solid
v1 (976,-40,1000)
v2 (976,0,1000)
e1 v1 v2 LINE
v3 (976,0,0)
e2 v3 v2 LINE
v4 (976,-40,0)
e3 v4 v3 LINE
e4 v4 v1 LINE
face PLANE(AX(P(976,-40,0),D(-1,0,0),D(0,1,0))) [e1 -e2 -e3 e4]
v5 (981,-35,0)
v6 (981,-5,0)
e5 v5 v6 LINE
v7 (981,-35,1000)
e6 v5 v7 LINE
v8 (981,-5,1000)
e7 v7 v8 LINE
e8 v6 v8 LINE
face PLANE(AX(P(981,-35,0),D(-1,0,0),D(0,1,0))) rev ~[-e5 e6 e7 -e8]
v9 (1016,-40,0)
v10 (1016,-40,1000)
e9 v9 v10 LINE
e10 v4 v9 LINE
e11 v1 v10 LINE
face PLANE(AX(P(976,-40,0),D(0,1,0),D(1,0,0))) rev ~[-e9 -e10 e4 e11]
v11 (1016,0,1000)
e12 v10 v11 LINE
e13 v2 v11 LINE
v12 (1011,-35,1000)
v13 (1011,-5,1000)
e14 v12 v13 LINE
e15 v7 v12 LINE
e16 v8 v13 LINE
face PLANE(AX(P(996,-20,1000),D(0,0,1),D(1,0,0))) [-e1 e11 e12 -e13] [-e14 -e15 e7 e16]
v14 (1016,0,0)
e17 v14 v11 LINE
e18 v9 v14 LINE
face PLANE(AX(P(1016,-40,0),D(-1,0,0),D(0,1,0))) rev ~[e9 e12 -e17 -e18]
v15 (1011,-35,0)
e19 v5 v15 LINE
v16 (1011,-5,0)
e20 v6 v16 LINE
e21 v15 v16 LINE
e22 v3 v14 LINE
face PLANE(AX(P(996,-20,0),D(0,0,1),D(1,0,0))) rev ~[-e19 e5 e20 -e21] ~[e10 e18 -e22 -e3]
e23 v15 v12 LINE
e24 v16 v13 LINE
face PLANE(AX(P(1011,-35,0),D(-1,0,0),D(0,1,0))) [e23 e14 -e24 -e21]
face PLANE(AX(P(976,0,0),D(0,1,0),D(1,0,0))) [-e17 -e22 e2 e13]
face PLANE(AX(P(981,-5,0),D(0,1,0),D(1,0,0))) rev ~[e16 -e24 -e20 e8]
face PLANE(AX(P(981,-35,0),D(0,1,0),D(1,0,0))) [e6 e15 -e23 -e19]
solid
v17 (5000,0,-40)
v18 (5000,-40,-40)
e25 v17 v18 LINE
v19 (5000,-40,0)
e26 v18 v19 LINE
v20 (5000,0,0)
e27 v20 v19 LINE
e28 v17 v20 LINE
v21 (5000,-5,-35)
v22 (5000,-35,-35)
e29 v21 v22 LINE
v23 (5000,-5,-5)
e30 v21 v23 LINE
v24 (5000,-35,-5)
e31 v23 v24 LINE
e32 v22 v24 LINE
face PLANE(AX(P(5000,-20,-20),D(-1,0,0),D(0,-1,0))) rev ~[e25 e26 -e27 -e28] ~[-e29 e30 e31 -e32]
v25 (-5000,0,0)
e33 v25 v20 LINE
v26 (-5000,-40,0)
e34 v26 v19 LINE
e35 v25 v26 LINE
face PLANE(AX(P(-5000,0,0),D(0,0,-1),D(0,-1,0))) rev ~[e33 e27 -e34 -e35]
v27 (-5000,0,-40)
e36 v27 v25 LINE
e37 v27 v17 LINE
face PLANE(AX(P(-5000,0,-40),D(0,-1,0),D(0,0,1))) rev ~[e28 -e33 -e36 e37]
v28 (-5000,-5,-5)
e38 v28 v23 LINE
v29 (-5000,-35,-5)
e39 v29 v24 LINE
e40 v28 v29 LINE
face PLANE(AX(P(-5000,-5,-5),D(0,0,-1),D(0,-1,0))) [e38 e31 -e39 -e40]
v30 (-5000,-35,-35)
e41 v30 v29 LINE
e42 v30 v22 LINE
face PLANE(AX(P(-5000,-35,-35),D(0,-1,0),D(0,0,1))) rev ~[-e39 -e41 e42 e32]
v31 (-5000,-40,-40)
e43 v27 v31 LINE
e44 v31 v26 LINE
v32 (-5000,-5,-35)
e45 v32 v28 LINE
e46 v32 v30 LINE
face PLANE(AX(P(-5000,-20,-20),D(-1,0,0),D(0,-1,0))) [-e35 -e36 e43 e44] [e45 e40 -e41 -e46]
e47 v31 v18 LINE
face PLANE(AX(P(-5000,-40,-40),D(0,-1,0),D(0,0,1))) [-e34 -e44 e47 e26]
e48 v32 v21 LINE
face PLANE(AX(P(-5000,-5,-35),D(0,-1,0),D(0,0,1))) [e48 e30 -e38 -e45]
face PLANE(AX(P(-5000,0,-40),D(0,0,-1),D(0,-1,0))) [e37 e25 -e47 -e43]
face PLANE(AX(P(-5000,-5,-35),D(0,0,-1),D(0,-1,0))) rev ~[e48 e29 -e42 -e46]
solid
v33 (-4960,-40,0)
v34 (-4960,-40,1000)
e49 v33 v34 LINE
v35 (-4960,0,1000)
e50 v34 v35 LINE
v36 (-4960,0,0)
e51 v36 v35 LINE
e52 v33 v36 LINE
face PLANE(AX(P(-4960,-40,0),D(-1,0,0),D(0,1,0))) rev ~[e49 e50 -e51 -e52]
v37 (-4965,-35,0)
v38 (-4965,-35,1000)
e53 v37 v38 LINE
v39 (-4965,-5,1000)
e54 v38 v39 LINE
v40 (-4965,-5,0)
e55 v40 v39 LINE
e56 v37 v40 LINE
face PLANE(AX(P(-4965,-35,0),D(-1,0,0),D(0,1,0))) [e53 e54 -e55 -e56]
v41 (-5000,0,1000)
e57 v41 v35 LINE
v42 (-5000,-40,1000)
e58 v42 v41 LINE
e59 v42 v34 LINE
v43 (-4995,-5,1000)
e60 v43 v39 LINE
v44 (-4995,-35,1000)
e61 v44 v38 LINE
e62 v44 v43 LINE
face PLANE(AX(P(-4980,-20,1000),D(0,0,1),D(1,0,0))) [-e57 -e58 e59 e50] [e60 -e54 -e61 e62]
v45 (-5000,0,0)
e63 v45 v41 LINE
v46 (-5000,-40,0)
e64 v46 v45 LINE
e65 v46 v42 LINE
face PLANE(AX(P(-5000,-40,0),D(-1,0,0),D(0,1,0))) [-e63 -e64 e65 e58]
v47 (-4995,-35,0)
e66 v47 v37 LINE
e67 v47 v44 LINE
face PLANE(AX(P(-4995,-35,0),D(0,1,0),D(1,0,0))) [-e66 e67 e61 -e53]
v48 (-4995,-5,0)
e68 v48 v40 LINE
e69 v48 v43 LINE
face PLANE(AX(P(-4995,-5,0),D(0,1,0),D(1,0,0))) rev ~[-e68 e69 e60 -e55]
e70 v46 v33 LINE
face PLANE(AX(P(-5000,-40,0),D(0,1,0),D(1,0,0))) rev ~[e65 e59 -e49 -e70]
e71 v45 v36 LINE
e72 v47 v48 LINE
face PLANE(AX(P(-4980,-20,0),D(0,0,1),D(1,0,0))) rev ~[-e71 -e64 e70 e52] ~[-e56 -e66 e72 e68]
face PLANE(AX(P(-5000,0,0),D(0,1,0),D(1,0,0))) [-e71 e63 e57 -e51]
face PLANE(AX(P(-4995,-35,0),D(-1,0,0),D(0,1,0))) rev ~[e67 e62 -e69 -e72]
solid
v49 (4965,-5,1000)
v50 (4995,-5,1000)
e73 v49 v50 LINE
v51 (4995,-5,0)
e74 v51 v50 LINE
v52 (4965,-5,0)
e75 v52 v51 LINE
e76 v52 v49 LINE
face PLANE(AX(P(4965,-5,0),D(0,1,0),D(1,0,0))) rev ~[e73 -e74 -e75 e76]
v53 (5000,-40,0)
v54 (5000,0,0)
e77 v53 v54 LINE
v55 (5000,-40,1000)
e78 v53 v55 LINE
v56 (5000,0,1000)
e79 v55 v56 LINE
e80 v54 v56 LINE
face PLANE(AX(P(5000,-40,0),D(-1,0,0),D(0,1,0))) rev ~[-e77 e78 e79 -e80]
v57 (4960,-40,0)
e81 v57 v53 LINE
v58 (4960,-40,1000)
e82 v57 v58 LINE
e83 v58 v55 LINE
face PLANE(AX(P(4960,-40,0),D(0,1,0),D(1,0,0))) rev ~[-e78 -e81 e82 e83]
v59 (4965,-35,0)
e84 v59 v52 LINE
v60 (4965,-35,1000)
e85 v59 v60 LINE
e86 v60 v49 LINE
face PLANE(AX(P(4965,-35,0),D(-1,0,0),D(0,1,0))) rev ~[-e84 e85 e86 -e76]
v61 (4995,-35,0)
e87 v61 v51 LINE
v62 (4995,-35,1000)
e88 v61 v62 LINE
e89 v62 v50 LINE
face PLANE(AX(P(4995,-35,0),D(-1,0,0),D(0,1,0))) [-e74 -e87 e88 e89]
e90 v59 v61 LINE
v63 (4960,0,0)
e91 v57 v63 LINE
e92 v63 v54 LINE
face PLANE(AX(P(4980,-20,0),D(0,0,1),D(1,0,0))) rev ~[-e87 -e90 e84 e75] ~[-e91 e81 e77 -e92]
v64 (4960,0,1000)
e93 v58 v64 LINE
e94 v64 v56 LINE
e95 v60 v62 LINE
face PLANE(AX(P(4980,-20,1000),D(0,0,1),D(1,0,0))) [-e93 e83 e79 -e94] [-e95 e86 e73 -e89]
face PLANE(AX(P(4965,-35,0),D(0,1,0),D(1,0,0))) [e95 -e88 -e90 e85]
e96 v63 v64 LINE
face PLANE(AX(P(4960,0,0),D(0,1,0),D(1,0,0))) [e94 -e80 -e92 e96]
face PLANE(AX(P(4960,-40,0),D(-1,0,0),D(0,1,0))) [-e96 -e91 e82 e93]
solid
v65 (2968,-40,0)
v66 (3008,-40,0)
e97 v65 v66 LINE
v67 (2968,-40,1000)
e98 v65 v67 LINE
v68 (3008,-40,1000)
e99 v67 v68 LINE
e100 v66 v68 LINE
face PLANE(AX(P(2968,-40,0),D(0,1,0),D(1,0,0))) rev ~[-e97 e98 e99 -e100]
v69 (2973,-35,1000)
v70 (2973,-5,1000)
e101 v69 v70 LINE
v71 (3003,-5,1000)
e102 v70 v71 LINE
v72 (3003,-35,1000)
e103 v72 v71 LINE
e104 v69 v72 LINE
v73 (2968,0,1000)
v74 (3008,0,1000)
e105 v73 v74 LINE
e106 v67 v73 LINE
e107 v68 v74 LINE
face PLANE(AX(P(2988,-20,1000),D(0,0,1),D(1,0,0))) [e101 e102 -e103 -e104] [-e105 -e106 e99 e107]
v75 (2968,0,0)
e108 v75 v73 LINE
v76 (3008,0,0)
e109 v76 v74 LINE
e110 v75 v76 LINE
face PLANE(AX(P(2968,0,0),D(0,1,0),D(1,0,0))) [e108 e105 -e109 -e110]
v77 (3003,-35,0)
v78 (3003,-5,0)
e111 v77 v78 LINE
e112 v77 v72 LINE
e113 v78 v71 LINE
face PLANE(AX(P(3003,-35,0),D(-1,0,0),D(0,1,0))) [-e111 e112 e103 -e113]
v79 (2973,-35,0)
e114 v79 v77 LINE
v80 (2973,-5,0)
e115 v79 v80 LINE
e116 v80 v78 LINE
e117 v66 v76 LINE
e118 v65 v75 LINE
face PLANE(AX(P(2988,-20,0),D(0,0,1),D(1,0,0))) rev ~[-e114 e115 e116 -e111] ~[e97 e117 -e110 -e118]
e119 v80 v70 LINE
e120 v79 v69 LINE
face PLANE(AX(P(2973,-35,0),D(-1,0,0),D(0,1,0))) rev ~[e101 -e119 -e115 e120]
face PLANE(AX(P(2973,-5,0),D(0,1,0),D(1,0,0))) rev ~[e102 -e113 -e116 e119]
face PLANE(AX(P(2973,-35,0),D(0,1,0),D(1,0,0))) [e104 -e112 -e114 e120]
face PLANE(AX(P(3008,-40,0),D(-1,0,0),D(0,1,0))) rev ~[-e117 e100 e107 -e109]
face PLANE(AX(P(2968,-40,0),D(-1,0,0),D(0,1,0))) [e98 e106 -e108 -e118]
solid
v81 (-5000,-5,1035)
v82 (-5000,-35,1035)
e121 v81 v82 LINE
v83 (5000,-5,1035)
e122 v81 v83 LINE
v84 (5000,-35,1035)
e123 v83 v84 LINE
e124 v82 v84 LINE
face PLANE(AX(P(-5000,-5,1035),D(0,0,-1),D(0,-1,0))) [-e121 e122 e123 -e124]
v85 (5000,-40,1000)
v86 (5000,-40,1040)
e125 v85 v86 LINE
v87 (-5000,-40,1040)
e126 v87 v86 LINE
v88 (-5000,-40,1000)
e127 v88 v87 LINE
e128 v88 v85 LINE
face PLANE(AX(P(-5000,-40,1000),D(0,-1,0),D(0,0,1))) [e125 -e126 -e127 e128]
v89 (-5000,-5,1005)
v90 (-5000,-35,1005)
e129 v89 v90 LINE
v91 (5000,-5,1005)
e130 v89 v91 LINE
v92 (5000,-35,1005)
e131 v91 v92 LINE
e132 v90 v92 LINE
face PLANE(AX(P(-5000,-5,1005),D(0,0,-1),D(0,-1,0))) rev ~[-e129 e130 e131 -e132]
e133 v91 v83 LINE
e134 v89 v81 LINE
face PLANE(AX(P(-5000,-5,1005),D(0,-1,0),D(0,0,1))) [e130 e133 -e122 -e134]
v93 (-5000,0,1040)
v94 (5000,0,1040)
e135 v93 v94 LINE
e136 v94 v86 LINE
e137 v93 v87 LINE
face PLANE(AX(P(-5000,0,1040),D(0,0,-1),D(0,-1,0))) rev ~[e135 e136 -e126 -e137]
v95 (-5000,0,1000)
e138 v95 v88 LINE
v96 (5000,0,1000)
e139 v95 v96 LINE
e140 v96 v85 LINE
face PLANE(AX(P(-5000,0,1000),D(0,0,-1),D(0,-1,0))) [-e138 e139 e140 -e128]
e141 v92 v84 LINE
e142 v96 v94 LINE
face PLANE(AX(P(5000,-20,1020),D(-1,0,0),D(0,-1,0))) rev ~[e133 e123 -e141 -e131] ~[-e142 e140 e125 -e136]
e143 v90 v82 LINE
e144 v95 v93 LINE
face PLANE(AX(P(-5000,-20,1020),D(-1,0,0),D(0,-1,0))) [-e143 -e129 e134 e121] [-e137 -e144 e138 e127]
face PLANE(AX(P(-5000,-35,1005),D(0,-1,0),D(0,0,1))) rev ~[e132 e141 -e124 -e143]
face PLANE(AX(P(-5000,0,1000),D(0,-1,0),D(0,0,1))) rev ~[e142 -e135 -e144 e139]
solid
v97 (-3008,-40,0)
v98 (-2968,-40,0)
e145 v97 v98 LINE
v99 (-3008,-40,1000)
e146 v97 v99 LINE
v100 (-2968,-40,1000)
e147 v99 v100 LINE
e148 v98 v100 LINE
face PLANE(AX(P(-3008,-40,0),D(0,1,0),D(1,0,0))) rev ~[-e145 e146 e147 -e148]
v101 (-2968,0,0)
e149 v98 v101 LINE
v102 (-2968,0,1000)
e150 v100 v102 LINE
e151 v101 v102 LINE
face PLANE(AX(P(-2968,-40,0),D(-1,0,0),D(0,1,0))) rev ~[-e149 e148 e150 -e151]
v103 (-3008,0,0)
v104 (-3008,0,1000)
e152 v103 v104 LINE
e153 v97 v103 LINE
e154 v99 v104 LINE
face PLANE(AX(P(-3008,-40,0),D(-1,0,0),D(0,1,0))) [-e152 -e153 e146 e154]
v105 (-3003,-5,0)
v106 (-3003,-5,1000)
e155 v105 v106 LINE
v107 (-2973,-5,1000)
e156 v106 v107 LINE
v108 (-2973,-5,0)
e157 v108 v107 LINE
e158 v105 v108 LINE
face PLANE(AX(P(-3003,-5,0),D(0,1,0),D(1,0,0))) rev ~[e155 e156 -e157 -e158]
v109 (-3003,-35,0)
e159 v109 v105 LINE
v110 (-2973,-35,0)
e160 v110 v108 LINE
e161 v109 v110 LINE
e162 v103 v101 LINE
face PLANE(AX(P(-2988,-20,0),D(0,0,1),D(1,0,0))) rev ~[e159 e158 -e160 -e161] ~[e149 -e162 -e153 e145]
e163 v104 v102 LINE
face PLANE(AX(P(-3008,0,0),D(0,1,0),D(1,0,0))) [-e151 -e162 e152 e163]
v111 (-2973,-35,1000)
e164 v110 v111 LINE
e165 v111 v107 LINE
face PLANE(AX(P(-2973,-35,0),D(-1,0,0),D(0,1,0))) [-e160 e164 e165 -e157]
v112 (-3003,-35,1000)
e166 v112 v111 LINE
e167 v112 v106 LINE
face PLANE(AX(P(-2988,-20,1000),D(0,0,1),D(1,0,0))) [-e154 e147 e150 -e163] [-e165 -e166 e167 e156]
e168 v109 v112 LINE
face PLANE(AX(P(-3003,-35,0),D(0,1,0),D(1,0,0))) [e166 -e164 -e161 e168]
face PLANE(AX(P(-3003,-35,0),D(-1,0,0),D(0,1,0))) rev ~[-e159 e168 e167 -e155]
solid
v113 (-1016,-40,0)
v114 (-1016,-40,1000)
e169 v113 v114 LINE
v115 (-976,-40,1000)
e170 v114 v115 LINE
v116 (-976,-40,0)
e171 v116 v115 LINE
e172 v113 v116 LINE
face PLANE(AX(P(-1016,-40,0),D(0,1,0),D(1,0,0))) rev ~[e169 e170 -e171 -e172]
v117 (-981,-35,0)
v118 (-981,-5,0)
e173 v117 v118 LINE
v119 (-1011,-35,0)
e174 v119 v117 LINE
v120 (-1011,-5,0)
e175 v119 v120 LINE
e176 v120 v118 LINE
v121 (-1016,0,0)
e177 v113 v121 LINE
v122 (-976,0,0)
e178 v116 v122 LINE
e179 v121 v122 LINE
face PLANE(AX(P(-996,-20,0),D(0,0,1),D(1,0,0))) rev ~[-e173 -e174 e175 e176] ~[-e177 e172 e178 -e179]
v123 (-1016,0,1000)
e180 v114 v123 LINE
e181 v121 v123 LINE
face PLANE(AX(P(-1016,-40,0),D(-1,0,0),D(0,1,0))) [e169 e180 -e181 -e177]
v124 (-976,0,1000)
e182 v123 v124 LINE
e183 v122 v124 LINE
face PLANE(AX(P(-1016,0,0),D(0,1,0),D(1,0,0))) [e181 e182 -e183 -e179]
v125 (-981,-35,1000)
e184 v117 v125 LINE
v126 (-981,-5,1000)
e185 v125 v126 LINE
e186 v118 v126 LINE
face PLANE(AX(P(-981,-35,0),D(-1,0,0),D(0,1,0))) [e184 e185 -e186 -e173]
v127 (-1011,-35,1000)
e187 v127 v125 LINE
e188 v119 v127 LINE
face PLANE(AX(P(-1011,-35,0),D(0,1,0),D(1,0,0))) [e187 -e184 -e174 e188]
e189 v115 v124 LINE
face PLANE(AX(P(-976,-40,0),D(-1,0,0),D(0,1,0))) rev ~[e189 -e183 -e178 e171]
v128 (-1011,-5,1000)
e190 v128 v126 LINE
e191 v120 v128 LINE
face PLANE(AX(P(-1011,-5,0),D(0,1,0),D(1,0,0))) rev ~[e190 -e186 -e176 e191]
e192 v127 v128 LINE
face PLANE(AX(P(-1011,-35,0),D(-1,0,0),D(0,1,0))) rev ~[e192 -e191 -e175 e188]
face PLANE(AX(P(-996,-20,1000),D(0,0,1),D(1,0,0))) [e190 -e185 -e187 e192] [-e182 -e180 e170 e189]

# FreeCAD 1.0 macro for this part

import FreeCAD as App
import Part
import Sketcher

V = App.Vector
Q = App.Units.Quantity


def add_polygon(sketch, points):
    """Adds a closed chain of lines whose ends are joined by coincident constraints."""
    first, n = sketch.GeometryCount, len(points)
    for a, b in zip(points, points[1:] + points[:1]):
        sketch.addGeometry(Part.LineSegment(App.Vector(*a, 0), App.Vector(*b, 0)), False)
    for i in range(n):
        sketch.addConstraint(Sketcher.Constraint("Coincident", first + i, 2, first + (i + 1) % n, 1))

doc = App.newDocument("Part")
body = doc.addObject("PartDesign::Body", "Body")
body.AllowCompound = True

sketch1 = body.newObject("Sketcher::SketchObject", "Sketch")
sketch1.AttachmentSupport = (doc.getObject("XY_Plane"), [""])
sketch1.MapMode = "FlatFace"
add_polygon(sketch1, [(-5000, 0), (-5000, -40), (-4960, -40), (-4960, 0)])
add_polygon(sketch1, [(-4965, -35), (-4995, -35), (-4995, -5), (-4965, -5)])
add_polygon(sketch1, [(-3008, 0), (-3008, -40), (-2968, -40), (-2968, 0)])
add_polygon(sketch1, [(-2973, -35), (-3003, -35), (-3003, -5), (-2973, -5)])
add_polygon(sketch1, [(-1016, 0), (-1016, -40), (-976, -40), (-976, 0)])
add_polygon(sketch1, [(-981, -35), (-1011, -35), (-1011, -5), (-981, -5)])
add_polygon(sketch1, [(976, 0), (976, -40), (1016, -40), (1016, 0)])
add_polygon(sketch1, [(1011, -35), (981, -35), (981, -5), (1011, -5)])
add_polygon(sketch1, [(2968, 0), (2968, -40), (3008, -40), (3008, 0)])
add_polygon(sketch1, [(3003, -35), (2973, -35), (2973, -5), (3003, -5)])
add_polygon(sketch1, [(4960, 0), (4960, -40), (5000, -40), (5000, 0)])
add_polygon(sketch1, [(4995, -35), (4965, -35), (4965, -5), (4995, -5)])
sketch1.addConstraint([
    Sketcher.Constraint("Vertical", 0),
    Sketcher.Constraint("Horizontal", 1),
    Sketcher.Constraint("Vertical", 2),
    Sketcher.Constraint("Horizontal", 3),
    Sketcher.Constraint("Horizontal", 4),
    Sketcher.Constraint("Vertical", 5),
    Sketcher.Constraint("Horizontal", 6),
    Sketcher.Constraint("Vertical", 7),
    Sketcher.Constraint("Vertical", 8),
    Sketcher.Constraint("Horizontal", 9),
    Sketcher.Constraint("Vertical", 10),
    Sketcher.Constraint("Horizontal", 11),
    Sketcher.Constraint("Horizontal", 12),
    Sketcher.Constraint("Vertical", 13),
    Sketcher.Constraint("Horizontal", 14),
    Sketcher.Constraint("Vertical", 15),
    Sketcher.Constraint("Vertical", 16),
    Sketcher.Constraint("Horizontal", 17),
    Sketcher.Constraint("Vertical", 18),
    Sketcher.Constraint("Horizontal", 19),
    Sketcher.Constraint("Horizontal", 20),
    Sketcher.Constraint("Vertical", 21),
    Sketcher.Constraint("Horizontal", 22),
    Sketcher.Constraint("Vertical", 23),
    Sketcher.Constraint("Vertical", 24),
    Sketcher.Constraint("Horizontal", 25),
    Sketcher.Constraint("Vertical", 26),
    Sketcher.Constraint("Horizontal", 27),
    Sketcher.Constraint("Horizontal", 28),
    Sketcher.Constraint("Vertical", 29),
    Sketcher.Constraint("Horizontal", 30),
    Sketcher.Constraint("Vertical", 31),
    Sketcher.Constraint("Vertical", 32),
    Sketcher.Constraint("Horizontal", 33),
    Sketcher.Constraint("Vertical", 34),
    Sketcher.Constraint("Horizontal", 35),
    Sketcher.Constraint("Horizontal", 36),
    Sketcher.Constraint("Vertical", 37),
    Sketcher.Constraint("Horizontal", 38),
    Sketcher.Constraint("Vertical", 39),
    Sketcher.Constraint("Vertical", 40),
    Sketcher.Constraint("Horizontal", 41),
    Sketcher.Constraint("Vertical", 42),
    Sketcher.Constraint("Horizontal", 43),
    Sketcher.Constraint("Horizontal", 44),
    Sketcher.Constraint("Vertical", 45),
    Sketcher.Constraint("Horizontal", 46),
    Sketcher.Constraint("Vertical", 47),
    Sketcher.Constraint("Symmetric", 19, 2, 26, 2, -1, 1),
    Sketcher.Constraint("Symmetric", 11, 2, 34, 2, -1, 1),
    Sketcher.Constraint("Symmetric", 3, 2, 42, 2, -1, 1),
    Sketcher.Constraint("Symmetric", 17, 2, 24, 2, -2),
    Sketcher.Constraint("Symmetric", 23, 2, 28, 2, -2),
    Sketcher.Constraint("Symmetric", 21, 2, 30, 2, -2),
    Sketcher.Constraint("Symmetric", 9, 2, 32, 2, -2),
    Sketcher.Constraint("Symmetric", 15, 2, 36, 2, -2),
    Sketcher.Constraint("Symmetric", 13, 2, 38, 2, -2),
    Sketcher.Constraint("Symmetric", 1, 2, 40, 2, -2),
    Sketcher.Constraint("Symmetric", 7, 2, 44, 2, -2),
    Sketcher.Constraint("Symmetric", 5, 2, 46, 2, -2),
    Sketcher.Constraint("PointOnObject", 2, 2, -1),
    Sketcher.Constraint("PointOnObject", 10, 2, -1),
    Sketcher.Constraint("PointOnObject", 18, 2, -1),
    Sketcher.Constraint("Horizontal", 1, 2, 8, 2),
    Sketcher.Constraint("Horizontal", 7, 2, 12, 2),
    Sketcher.Constraint("Horizontal", 6, 2, 13, 2),
    Sketcher.Constraint("Horizontal", 9, 2, 16, 2),
    Sketcher.Constraint("Horizontal", 15, 2, 20, 2),
    Sketcher.Constraint("Horizontal", 14, 2, 21, 2),
    Sketcher.Constraint("Equal", 3, 9),
    Sketcher.Constraint("Equal", 6, 12),
    Sketcher.Constraint("Equal", 11, 17),
    Sketcher.Constraint("Equal", 14, 20),
    Sketcher.Constraint("Equal", 43, 0),
    Sketcher.Constraint("Equal", 46, 5),
    Sketcher.Constraint("DistanceX", 1, 1, 1, 2, Q("40 mm")),
    Sketcher.Constraint("DistanceX", 4, 2, 4, 1, Q("30 mm")),
    Sketcher.Constraint("DistanceX", 0, 2, -1, 1, Q("5000 mm")),
    Sketcher.Constraint("DistanceX", 4, 2, -1, 1, Q("4995 mm")),
    Sketcher.Constraint("DistanceY", 4, 2, -1, 1, Q("35 mm")),
    Sketcher.Constraint("DistanceX", 8, 2, -1, 1, Q("3008 mm")),
    Sketcher.Constraint("DistanceX", 12, 2, -1, 1, Q("3003 mm")),
    Sketcher.Constraint("DistanceX", 16, 2, -1, 1, Q("1016 mm")),
    Sketcher.Constraint("DistanceX", 20, 2, -1, 1, Q("1011 mm")),
])
pad1 = body.newObject("PartDesign::Pad", "Pad")
pad1.Profile = sketch1
pad1.Length = 1000
body2 = doc.addObject("PartDesign::Body", "Body001")
body2.AllowCompound = True

sketch2 = body2.newObject("Sketcher::SketchObject", "Sketch001")
sketch2.AttachmentSupport = (doc.getObject("YZ_Plane001"), [""])
sketch2.MapMode = "FlatFace"
sketch2.AttachmentOffset = App.Placement(V(0, 0, -5000), App.Rotation())
add_polygon(sketch2, [(0, 1040), (0, 1000), (-40, 1000), (-40, 1040)])
add_polygon(sketch2, [(-35, 1005), (-5, 1005), (-5, 1035), (-35, 1035)])
add_polygon(sketch2, [(0, 0), (0, -40), (-40, -40), (-40, 0)])
add_polygon(sketch2, [(-35, -35), (-5, -35), (-5, -5), (-35, -5)])
sketch2.addConstraint([
    Sketcher.Constraint("Vertical", 0),
    Sketcher.Constraint("Horizontal", 1),
    Sketcher.Constraint("Vertical", 2),
    Sketcher.Constraint("Horizontal", 3),
    Sketcher.Constraint("Horizontal", 4),
    Sketcher.Constraint("Vertical", 5),
    Sketcher.Constraint("Horizontal", 6),
    Sketcher.Constraint("Vertical", 7),
    Sketcher.Constraint("Vertical", 8),
    Sketcher.Constraint("Horizontal", 9),
    Sketcher.Constraint("Vertical", 10),
    Sketcher.Constraint("Horizontal", 11),
    Sketcher.Constraint("Horizontal", 12),
    Sketcher.Constraint("Vertical", 13),
    Sketcher.Constraint("Horizontal", 14),
    Sketcher.Constraint("Vertical", 15),
    Sketcher.Constraint("Coincident", 11, 2, -1, 1),
    Sketcher.Constraint("PointOnObject", 0, 2, -2),
    Sketcher.Constraint("Vertical", 2, 2, 9, 2),
    Sketcher.Constraint("Vertical", 5, 2, 12, 2),
    Sketcher.Constraint("Vertical", 7, 2, 14, 2),
    Sketcher.Constraint("Equal", 11, 0),
    Sketcher.Constraint("Equal", 14, 5),
    Sketcher.Constraint("Equal", 2, 8),
    Sketcher.Constraint("Equal", 7, 13),
    Sketcher.Constraint("DistanceX", 1, 2, 1, 1, Q("40 mm")),
    Sketcher.Constraint("DistanceX", 4, 1, 4, 2, Q("30 mm")),
    Sketcher.Constraint("DistanceY", -1, 1, 0, 2, Q("1000 mm")),
    Sketcher.Constraint("DistanceX", 4, 2, -1, 1, Q("5 mm")),
    Sketcher.Constraint("DistanceY", -1, 1, 4, 2, Q("1005 mm")),
    Sketcher.Constraint("DistanceY", 12, 2, -1, 1, Q("35 mm")),
])
pad2 = body2.newObject("PartDesign::Pad", "Pad001")
pad2.Profile = sketch2
pad2.Length = 10000

doc.recompute()
